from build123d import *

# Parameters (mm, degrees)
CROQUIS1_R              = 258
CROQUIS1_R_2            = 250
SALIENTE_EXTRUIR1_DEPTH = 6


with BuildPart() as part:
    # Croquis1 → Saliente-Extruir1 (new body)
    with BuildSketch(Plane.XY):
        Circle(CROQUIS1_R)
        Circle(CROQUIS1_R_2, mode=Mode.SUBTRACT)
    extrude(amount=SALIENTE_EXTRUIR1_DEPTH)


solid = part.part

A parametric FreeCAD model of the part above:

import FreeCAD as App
import Part
import Sketcher

V = App.Vector
Q = App.Units.Quantity

doc = App.newDocument("Part")
body = doc.addObject("PartDesign::Body", "Body")

# Sketch on XY plane
sketch1 = doc.addObject("Sketcher::SketchObject", "Sketch")
body.addObject(sketch1)
sketch1.AttachmentSupport = (doc.XY_Plane, [""])
sketch1.MapMode = "FlatFace"
sketch1.addGeometry([
    Part.Circle(V(0, 0, 0), V(0, 0, 1), 258),
    Part.Circle(V(0, 0, 0), V(0, 0, 1), 250),
], False)
sketch1.addConstraint([
    Sketcher.Constraint("Coincident", 0, 3, -1, 1),
    Sketcher.Constraint("Coincident", 1, 3, -1, 1),
    Sketcher.Constraint("Diameter", 0, Q("516 mm")),
    Sketcher.Constraint("Diameter", 1, Q("500 mm")),
])
pad1 = doc.addObject("PartDesign::Pad", "Pad")
body.addObject(pad1)
pad1.Profile = sketch1
pad1.Length = 6

doc.recompute()
